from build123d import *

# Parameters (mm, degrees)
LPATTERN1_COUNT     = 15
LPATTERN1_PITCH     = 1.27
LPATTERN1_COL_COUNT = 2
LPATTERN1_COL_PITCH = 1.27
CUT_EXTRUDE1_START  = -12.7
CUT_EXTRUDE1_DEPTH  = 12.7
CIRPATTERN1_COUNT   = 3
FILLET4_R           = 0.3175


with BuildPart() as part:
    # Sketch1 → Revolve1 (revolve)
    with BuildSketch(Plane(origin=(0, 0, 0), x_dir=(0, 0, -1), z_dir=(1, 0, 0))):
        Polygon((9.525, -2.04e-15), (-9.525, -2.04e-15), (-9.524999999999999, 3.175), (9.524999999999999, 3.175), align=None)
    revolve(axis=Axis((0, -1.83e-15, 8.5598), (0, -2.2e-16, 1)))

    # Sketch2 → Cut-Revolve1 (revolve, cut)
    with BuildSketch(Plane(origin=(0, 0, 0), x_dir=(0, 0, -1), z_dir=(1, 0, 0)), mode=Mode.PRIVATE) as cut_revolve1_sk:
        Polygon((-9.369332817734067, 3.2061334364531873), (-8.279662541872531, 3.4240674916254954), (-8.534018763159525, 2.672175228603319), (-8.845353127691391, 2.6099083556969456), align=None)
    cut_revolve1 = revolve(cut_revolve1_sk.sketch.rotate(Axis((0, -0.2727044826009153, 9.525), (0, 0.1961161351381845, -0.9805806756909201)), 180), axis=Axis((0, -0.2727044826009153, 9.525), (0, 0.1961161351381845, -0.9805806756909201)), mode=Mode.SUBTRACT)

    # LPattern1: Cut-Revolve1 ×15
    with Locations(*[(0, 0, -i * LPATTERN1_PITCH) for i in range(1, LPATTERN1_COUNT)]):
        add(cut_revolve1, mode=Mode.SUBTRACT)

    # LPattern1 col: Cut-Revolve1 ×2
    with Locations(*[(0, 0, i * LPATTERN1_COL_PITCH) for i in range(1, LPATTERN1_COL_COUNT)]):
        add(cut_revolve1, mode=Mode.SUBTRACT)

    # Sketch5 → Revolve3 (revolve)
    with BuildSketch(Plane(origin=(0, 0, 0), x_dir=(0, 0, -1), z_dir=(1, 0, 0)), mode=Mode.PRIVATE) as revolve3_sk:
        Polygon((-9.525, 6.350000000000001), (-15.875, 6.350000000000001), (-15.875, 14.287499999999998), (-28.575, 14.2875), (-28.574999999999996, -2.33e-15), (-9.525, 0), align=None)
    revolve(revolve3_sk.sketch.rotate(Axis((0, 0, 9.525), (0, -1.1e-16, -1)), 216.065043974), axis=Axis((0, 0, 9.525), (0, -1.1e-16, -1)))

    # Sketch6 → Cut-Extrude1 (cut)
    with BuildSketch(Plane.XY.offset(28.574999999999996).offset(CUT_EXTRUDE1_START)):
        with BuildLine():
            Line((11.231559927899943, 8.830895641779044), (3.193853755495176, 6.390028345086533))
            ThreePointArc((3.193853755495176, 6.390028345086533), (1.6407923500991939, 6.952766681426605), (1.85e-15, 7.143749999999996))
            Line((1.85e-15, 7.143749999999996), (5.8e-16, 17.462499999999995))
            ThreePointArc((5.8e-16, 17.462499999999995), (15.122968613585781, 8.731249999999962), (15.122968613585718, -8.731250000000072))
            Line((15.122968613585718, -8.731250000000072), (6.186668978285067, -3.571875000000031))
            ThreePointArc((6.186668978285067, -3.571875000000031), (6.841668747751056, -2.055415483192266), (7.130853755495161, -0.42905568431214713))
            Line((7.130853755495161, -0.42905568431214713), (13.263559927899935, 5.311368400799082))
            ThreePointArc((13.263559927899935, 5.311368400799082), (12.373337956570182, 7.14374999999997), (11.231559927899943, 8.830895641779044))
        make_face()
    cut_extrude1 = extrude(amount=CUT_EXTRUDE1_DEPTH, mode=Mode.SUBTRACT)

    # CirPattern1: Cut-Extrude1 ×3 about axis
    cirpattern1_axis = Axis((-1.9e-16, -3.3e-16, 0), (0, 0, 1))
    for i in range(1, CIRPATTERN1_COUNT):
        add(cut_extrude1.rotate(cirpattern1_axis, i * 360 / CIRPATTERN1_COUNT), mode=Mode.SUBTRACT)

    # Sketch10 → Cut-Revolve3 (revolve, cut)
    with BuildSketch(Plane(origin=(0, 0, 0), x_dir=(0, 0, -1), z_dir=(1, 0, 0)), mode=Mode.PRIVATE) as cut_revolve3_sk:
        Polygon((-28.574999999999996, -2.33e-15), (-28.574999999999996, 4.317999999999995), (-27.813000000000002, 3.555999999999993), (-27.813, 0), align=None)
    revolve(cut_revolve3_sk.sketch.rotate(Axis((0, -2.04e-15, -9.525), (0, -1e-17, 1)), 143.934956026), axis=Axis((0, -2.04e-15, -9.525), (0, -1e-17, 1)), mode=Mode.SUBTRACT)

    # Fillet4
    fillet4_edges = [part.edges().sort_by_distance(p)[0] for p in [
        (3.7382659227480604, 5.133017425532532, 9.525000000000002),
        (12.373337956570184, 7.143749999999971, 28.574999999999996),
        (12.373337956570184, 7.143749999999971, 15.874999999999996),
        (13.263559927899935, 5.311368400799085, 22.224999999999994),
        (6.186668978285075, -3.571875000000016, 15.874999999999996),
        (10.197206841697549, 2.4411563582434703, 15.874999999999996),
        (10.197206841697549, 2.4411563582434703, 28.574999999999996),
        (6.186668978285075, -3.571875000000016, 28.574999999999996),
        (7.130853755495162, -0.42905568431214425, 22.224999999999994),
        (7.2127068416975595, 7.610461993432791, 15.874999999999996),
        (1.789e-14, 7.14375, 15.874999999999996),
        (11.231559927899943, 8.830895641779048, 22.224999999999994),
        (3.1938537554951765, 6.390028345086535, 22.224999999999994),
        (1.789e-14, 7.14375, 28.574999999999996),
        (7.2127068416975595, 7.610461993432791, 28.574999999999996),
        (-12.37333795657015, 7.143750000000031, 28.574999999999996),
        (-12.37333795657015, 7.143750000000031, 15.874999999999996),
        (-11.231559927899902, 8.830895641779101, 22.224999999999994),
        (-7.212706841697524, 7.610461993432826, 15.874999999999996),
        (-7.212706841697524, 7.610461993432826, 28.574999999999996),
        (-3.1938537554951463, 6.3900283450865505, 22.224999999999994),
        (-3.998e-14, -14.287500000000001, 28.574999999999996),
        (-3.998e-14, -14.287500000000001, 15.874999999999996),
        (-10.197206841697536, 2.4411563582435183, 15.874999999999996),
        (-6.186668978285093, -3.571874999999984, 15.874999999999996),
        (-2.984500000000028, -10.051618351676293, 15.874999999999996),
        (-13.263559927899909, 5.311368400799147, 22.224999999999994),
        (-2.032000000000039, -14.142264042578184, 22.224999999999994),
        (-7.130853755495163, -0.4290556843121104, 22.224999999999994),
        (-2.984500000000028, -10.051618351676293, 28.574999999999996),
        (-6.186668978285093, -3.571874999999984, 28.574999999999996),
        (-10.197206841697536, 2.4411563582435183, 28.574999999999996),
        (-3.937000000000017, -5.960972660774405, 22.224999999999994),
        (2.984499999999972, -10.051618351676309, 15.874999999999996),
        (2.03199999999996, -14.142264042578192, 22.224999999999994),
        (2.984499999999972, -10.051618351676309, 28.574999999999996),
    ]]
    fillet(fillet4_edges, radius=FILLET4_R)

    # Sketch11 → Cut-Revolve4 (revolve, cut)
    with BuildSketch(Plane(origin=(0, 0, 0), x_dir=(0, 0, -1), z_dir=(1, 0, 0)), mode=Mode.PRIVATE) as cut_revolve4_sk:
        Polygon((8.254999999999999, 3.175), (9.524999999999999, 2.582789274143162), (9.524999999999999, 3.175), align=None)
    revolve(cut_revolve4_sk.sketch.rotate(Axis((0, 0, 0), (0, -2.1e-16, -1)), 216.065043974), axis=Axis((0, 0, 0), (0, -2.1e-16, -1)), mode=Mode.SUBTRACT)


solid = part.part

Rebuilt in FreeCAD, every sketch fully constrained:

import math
import FreeCAD as App
import Part
import Sketcher

V = App.Vector
Q = App.Units.Quantity


def edges_at(feature, points):
    """Names of the edges that pass closest to the given points."""
    edges = feature.Shape.Edges
    near = lambda p: min(range(len(edges)), key=lambda i: edges[i].distToShape(Part.Vertex(*p))[0])
    return sorted({f"Edge{near(p) + 1}" for p in points})

doc = App.newDocument("Part")
body = doc.addObject("PartDesign::Body", "Body")

sketch1 = body.newObject("Sketcher::SketchObject", "Sketch")
sketch1.AttachmentSupport = (doc.getObject("YZ_Plane"), [""])
sketch1.MapMode = "FlatFace"
sketch1.addGeometry(Part.LineSegment(V(0, 9.525, 0), V(0, -9.525, 0)), False)
sketch1.addGeometry(Part.LineSegment(V(0, -9.525, 0), V(3.175, -9.525, 0)), False)
sketch1.addGeometry(Part.LineSegment(V(3.175, -9.525, 0), V(3.175, 9.525, 0)), False)
sketch1.addGeometry(Part.LineSegment(V(3.175, 9.525, 0), V(0, 9.525, 0)), False)
sketch1.addConstraint(Sketcher.Constraint("Coincident", 0, 2, 1, 1))
sketch1.addConstraint(Sketcher.Constraint("Coincident", 1, 2, 2, 1))
sketch1.addConstraint(Sketcher.Constraint("Coincident", 2, 2, 3, 1))
sketch1.addConstraint(Sketcher.Constraint("Coincident", 3, 2, 0, 1))
sketch1.addConstraint(Sketcher.Constraint("Vertical", 0))
sketch1.addConstraint(Sketcher.Constraint("Horizontal", 1))
sketch1.addConstraint(Sketcher.Constraint("Vertical", 2))
sketch1.addConstraint(Sketcher.Constraint("Horizontal", 3))
sketch1.addConstraint(Sketcher.Constraint("Symmetric", 0, 2, 3, 2, -1, 1))
sketch1.addConstraint(Sketcher.Constraint("DistanceY", 0, 2, 0, 1, Q("0.75 in")))
sketch1.addConstraint(Sketcher.Constraint("DistanceX", 1, 1, 1, 2, Q("0.125 in")))
revolution = body.newObject("PartDesign::Revolution", "Revolution")
revolution.Profile = sketch1
revolution.ReferenceAxis = (sketch1, ["V_Axis"])
revolution.Angle = 360

sketch2 = body.newObject("Sketcher::SketchObject", "Sketch001")
sketch2.AttachmentSupport = (doc.getObject("YZ_Plane"), [""])
sketch2.MapMode = "FlatFace"
sketch2.addGeometry(Part.LineSegment(V(3.424067, 8.279663, 0), V(3.206133, 9.369333, 0)), False)
sketch2.addGeometry(Part.LineSegment(V(3.206133, 9.369333, 0), V(2.609908, 8.845353, 0)), False)
sketch2.addGeometry(Part.LineSegment(V(2.609908, 8.845353, 0), V(2.672175, 8.534019, 0)), False)
sketch2.addGeometry(Part.LineSegment(V(2.672175, 8.534019, 0), V(3.424067, 8.279663, 0)), False)
sketch2.addGeometry(Part.LineSegment(V(-0.108967, 8.706313, 0), V(0.108967, 7.616642, 0)), True)
sketch2.addConstraint(Sketcher.Constraint("Coincident", 0, 2, 1, 1))
sketch2.addConstraint(Sketcher.Constraint("Coincident", 1, 2, 2, 1))
sketch2.addConstraint(Sketcher.Constraint("Coincident", 2, 2, 3, 1))
sketch2.addConstraint(Sketcher.Constraint("Coincident", 3, 2, 0, 1))
sketch2.addConstraint(Sketcher.Constraint("Parallel", 0, 2))
sketch2.addConstraint(Sketcher.Constraint("Parallel", 2, 4))
sketch2.addConstraint(Sketcher.Constraint("Equal", 1, 3))
sketch2.addConstraint(Sketcher.Constraint("Equal", 0, 4))
sketch2.addConstraint(Sketcher.Constraint("Distance", 1, Q("0.03125 in")))
sketch2.addConstraint(Sketcher.Constraint("Distance", 2, Q("0.0125 in")))
sketch2.addConstraint(Sketcher.Constraint("DistanceX", 4, 1, 0, 2, 3.3151))
sketch2.addConstraint(Sketcher.Constraint("Distance", 0, 1.11125))
sketch2.addConstraint(Sketcher.Constraint("DistanceX", -1, 1, 1, 2, 2.609908))
sketch2.addConstraint(Sketcher.Constraint("DistanceY", -1, 1, 2, 2, 8.534019))
sketch2.addConstraint(Sketcher.Constraint("DistanceY", 1, 2, 0, 2, 0.52398))
sketch2.addConstraint(Sketcher.Constraint("DistanceY", 4, 1, 1, 2, 0.13904))
groove = body.newObject("PartDesign::Groove", "Groove")
groove.Profile = sketch2
groove.ReferenceAxis = (sketch2, ["Axis0"])
groove.Angle = 360
doc.recompute()

linearpattern = body.newObject("PartDesign::LinearPattern", "LinearPattern")
linearpattern.Originals = [groove]
linearpattern.Direction = (doc.getObject("Z_Axis"), [""])
linearpattern.Mode = "offset"
linearpattern.Offset = Q("0.05 in")
linearpattern.Occurrences = 15
linearpattern.Reversed = True
body.Tip = linearpattern
doc.recompute()

linearpattern2 = body.newObject("PartDesign::LinearPattern", "LinearPattern001")
linearpattern2.Originals = [groove]
linearpattern2.Direction = (doc.getObject("Z_Axis"), [""])
linearpattern2.Mode = "offset"
linearpattern2.Offset = Q("0.05 in")
linearpattern2.Occurrences = 2
body.Tip = linearpattern2

sketch3 = body.newObject("Sketcher::SketchObject", "Sketch002")
sketch3.AttachmentSupport = (doc.getObject("YZ_Plane"), [""])
sketch3.MapMode = "FlatFace"
sketch3.addGeometry(Part.LineSegment(V(6.35, 9.525, 0), V(6.35, 15.875, 0)), False)
sketch3.addGeometry(Part.LineSegment(V(6.35, 15.875, 0), V(14.2875, 15.875, 0)), False)
sketch3.addGeometry(Part.LineSegment(V(14.2875, 15.875, 0), V(14.2875, 28.575, 0)), False)
sketch3.addGeometry(Part.LineSegment(V(14.2875, 28.575, 0), V(0, 28.575, 0)), False)
sketch3.addGeometry(Part.LineSegment(V(0, 28.575, 0), V(0, 9.525, 0)), False)
sketch3.addGeometry(Part.LineSegment(V(0, 9.525, 0), V(6.35, 9.525, 0)), False)
sketch3.addConstraint(Sketcher.Constraint("Coincident", 0, 2, 1, 1))
sketch3.addConstraint(Sketcher.Constraint("Coincident", 1, 2, 2, 1))
sketch3.addConstraint(Sketcher.Constraint("Coincident", 2, 2, 3, 1))
sketch3.addConstraint(Sketcher.Constraint("Coincident", 3, 2, 4, 1))
sketch3.addConstraint(Sketcher.Constraint("Coincident", 4, 2, 5, 1))
sketch3.addConstraint(Sketcher.Constraint("Coincident", 5, 2, 0, 1))
sketch3.addConstraint(Sketcher.Constraint("Vertical", 0))
sketch3.addConstraint(Sketcher.Constraint("Horizontal", 1))
sketch3.addConstraint(Sketcher.Constraint("Vertical", 2))
sketch3.addConstraint(Sketcher.Constraint("Horizontal", 3))
sketch3.addConstraint(Sketcher.Constraint("Vertical", 4))
sketch3.addConstraint(Sketcher.Constraint("Horizontal", 5))
sketch3.addConstraint(Sketcher.Constraint("PointOnObject", 3, 2, -2))
sketch3.addConstraint(Sketcher.Constraint("Equal", 5, 0))
sketch3.addConstraint(Sketcher.Constraint("DistanceY", 2, 1, 2, 2, Q("0.5 in")))
sketch3.addConstraint(Sketcher.Constraint("DistanceX", 5, 1, 5, 2, Q("0.25 in")))
sketch3.addConstraint(Sketcher.Constraint("DistanceX", 1, 1, 1, 2, Q("0.3125 in")))
sketch3.addConstraint(Sketcher.Constraint("DistanceY", -1, 1, 0, 2, Q("0.625 in")))
revolution2 = body.newObject("PartDesign::Revolution", "Revolution001")
revolution2.Profile = sketch3
revolution2.ReferenceAxis = (sketch3, ["V_Axis"])
revolution2.Angle = 360

sketch4 = body.newObject("Sketcher::SketchObject", "Sketch003")
sketch4.AttachmentSupport = (doc.getObject("XY_Plane"), [""])
sketch4.MapMode = "FlatFace"
sketch4.AttachmentOffset = App.Placement(V(0, 0, 0.625 * 25.4), App.Rotation())
sketch4.addGeometry(Part.LineSegment(V(3.193854, 6.390028, 0), V(11.23156, 8.830896, 0)), False)
sketch4.addGeometry(Part.ArcOfCircle(Part.Circle(V(0, 0, 0), V(0, 0, 1), 14.2875), math.radians(21.823543), math.radians(38.176457)), False)
sketch4.addGeometry(Part.LineSegment(V(13.26356, 5.311368, 0), V(7.130854, -0.429056, 0)), False)
sketch4.addGeometry(Part.ArcOfCircle(Part.Circle(V(0, 0, 0), V(0, 0, 1), 7.14375), math.radians(-30), math.radians(-3.443273)), False)
sketch4.addGeometry(Part.LineSegment(V(6.186669, -3.571875, 0), V(15.122969, -8.73125, 0)), False)
sketch4.addGeometry(Part.ArcOfCircle(Part.Circle(V(0, 0, 0), V(0, 0, 1), 17.4625), math.radians(-30), math.radians(90)), False)
sketch4.addGeometry(Part.LineSegment(V(0, 17.4625, 0), V(0, 7.14375, 0)), False)
sketch4.addGeometry(Part.ArcOfCircle(Part.Circle(V(0, 0, 0), V(0, 0, 1), 7.14375), math.radians(63.443273), math.radians(90)), False)
sketch4.addConstraint(Sketcher.Constraint("Coincident", 0, 2, 1, 2))
sketch4.addConstraint(Sketcher.Constraint("Coincident", 1, 1, 2, 1))
sketch4.addConstraint(Sketcher.Constraint("Coincident", 2, 2, 3, 2))
sketch4.addConstraint(Sketcher.Constraint("Coincident", 3, 1, 4, 1))
sketch4.addConstraint(Sketcher.Constraint("Coincident", 4, 2, 5, 1))
sketch4.addConstraint(Sketcher.Constraint("Coincident", 5, 2, 6, 1))
sketch4.addConstraint(Sketcher.Constraint("Coincident", 6, 2, 7, 2))
sketch4.addConstraint(Sketcher.Constraint("Coincident", 7, 1, 0, 1))
sketch4.addConstraint(Sketcher.Constraint("Vertical", 6))
sketch4.addConstraint(Sketcher.Constraint("Coincident", 1, 3, -1, 1))
sketch4.addConstraint(Sketcher.Constraint("Coincident", 3, 3, -1, 1))
sketch4.addConstraint(Sketcher.Constraint("Coincident", 5, 3, -1, 1))
sketch4.addConstraint(Sketcher.Constraint("Coincident", 7, 3, -1, 1))
sketch4.addConstraint(Sketcher.Constraint("Equal", 3, 7))
sketch4.addConstraint(Sketcher.Constraint("PointOnObject", 5, 2, -2))
sketch4.addConstraint(Sketcher.Constraint("Equal", 0, 2))
sketch4.addConstraint(Sketcher.Constraint("Angle", 4, Q("-30 deg")))
sketch4.addConstraint(Sketcher.Constraint("Radius", 1, Q("0.5625 in")))
sketch4.addConstraint(Sketcher.Constraint("Radius", 3, Q("0.28125 in")))
sketch4.addConstraint(Sketcher.Constraint("Radius", 5, Q("0.6875 in")))
sketch4.addConstraint(Sketcher.Constraint("DistanceX", 0, 2, 1, 1, Q("0.08 in")))
sketch4.addConstraint(Sketcher.Constraint("DistanceY", 3, 1, -1, 1, Q("0.140625 in")))
sketch4.addConstraint(Sketcher.Constraint("DistanceX", -1, 1, 0, 2, 11.23156))
sketch4.addConstraint(Sketcher.Constraint("DistanceY", -1, 1, 7, 1, 6.390028))
pocket1 = body.newObject("PartDesign::Pocket", "Pocket")
pocket1.Profile = sketch4
pocket1.Length = Q("0.5 in")
pocket1.Reversed = True
doc.recompute()

polarpattern = body.newObject("PartDesign::PolarPattern", "PolarPattern")
polarpattern.Originals = [pocket1]
polarpattern.Axis = (doc.getObject("Z_Axis"), [""])
polarpattern.Angle = 360
polarpattern.Occurrences = 3
body.Tip = polarpattern

sketch5 = body.newObject("Sketcher::SketchObject", "Sketch004")
sketch5.AttachmentSupport = (doc.getObject("YZ_Plane"), [""])
sketch5.MapMode = "FlatFace"
sketch5.addGeometry(Part.LineSegment(V(4.318, 28.575, 0), V(0, 28.575, 0)), False)
sketch5.addGeometry(Part.LineSegment(V(0, 28.575, 0), V(0, 27.813, 0)), False)
sketch5.addGeometry(Part.LineSegment(V(0, 27.813, 0), V(3.556, 27.813, 0)), False)
sketch5.addGeometry(Part.LineSegment(V(3.556, 27.813, 0), V(4.318, 28.575, 0)), False)
sketch5.addConstraint(Sketcher.Constraint("Coincident", 0, 2, 1, 1))
sketch5.addConstraint(Sketcher.Constraint("Coincident", 1, 2, 2, 1))
sketch5.addConstraint(Sketcher.Constraint("Coincident", 2, 2, 3, 1))
sketch5.addConstraint(Sketcher.Constraint("Coincident", 3, 2, 0, 1))
sketch5.addConstraint(Sketcher.Constraint("Horizontal", 0))
sketch5.addConstraint(Sketcher.Constraint("Vertical", 1))
sketch5.addConstraint(Sketcher.Constraint("Horizontal", 2))
sketch5.addConstraint(Sketcher.Constraint("PointOnObject", 0, 2, -2))
sketch5.addConstraint(Sketcher.Constraint("Angle", 3, Q("45 deg")))
sketch5.addConstraint(Sketcher.Constraint("DistanceX", 0, 2, 0, 1, Q("0.17 in")))
sketch5.addConstraint(Sketcher.Constraint("DistanceX", 2, 1, 2, 2, Q("0.14 in")))
sketch5.addConstraint(Sketcher.Constraint("DistanceY", -1, 1, 0, 2, Q("1.125 in")))
groove2 = body.newObject("PartDesign::Groove", "Groove001")
groove2.Profile = sketch5
groove2.ReferenceAxis = (sketch5, ["V_Axis"])
groove2.Angle = 360
doc.recompute()

fillet = body.newObject("PartDesign::Fillet", "Fillet")
fillet.Base = (groove2, edges_at(groove2, [
    (3.738, 5.133, 9.525),
    (12.373, 7.144, 28.575),
    (12.373, 7.144, 15.875),
    (13.264, 5.311, 22.225),
    (6.187, -3.572, 15.875),
    (10.197, 2.441, 15.875),
    (10.197, 2.441, 28.575),
    (6.187, -3.572, 28.575),
    (7.131, -0.429, 22.225),
    (7.213, 7.61, 15.875),
    (0, 7.144, 15.875),
    (11.232, 8.831, 22.225),
    (3.194, 6.39, 22.225),
    (0, 7.144, 28.575),
    (7.213, 7.61, 28.575),
    (-12.373, 7.144, 28.575),
    (-12.373, 7.144, 15.875),
    (-11.232, 8.831, 22.225),
    (-7.213, 7.61, 15.875),
    (-7.213, 7.61, 28.575),
    (-3.194, 6.39, 22.225),
    (0, -14.287, 28.575),
    (0, -14.287, 15.875),
    (-10.197, 2.441, 15.875),
    (-6.187, -3.572, 15.875),
    (-2.985, -10.052, 15.875),
    (-13.264, 5.311, 22.225),
    (-2.032, -14.142, 22.225),
    (-7.131, -0.429, 22.225),
    (-2.985, -10.052, 28.575),
    (-6.187, -3.572, 28.575),
    (-10.197, 2.441, 28.575),
    (-3.937, -5.961, 22.225),
    (2.985, -10.052, 15.875),
    (2.032, -14.142, 22.225),
    (2.985, -10.052, 28.575),
]))
fillet.Radius = Q("0.0125 in")

sketch6 = body.newObject("Sketcher::SketchObject", "Sketch005")
sketch6.AttachmentSupport = (doc.getObject("YZ_Plane"), [""])
sketch6.MapMode = "FlatFace"
sketch6.addGeometry(Part.LineSegment(V(3.175, -8.255, 0), V(2.582789, -9.525, 0)), False)
sketch6.addGeometry(Part.LineSegment(V(2.582789, -9.525, 0), V(3.175, -9.525, 0)), False)
sketch6.addGeometry(Part.LineSegment(V(3.175, -9.525, 0), V(3.175, -8.255, 0)), False)
sketch6.addConstraint(Sketcher.Constraint("Coincident", 0, 2, 1, 1))
sketch6.addConstraint(Sketcher.Constraint("Coincident", 1, 2, 2, 1))
sketch6.addConstraint(Sketcher.Constraint("Coincident", 2, 2, 0, 1))
sketch6.addConstraint(Sketcher.Constraint("Horizontal", 1))
sketch6.addConstraint(Sketcher.Constraint("Vertical", 2))
sketch6.addConstraint(Sketcher.Constraint("Angle", 0, Q("-115 deg")))
sketch6.addConstraint(Sketcher.Constraint("DistanceY", 2, 1, 2, 2, Q("0.05 in")))
sketch6.addConstraint(Sketcher.Constraint("DistanceY", 0, 2, -1, 1, Q("0.375 in")))
sketch6.addConstraint(Sketcher.Constraint("DistanceX", -1, 1, 1, 2, Q("0.125 in")))
groove3 = body.newObject("PartDesign::Groove", "Groove002")
groove3.Profile = sketch6
groove3.ReferenceAxis = (sketch6, ["V_Axis"])
groove3.Angle = 360

doc.recompute()
